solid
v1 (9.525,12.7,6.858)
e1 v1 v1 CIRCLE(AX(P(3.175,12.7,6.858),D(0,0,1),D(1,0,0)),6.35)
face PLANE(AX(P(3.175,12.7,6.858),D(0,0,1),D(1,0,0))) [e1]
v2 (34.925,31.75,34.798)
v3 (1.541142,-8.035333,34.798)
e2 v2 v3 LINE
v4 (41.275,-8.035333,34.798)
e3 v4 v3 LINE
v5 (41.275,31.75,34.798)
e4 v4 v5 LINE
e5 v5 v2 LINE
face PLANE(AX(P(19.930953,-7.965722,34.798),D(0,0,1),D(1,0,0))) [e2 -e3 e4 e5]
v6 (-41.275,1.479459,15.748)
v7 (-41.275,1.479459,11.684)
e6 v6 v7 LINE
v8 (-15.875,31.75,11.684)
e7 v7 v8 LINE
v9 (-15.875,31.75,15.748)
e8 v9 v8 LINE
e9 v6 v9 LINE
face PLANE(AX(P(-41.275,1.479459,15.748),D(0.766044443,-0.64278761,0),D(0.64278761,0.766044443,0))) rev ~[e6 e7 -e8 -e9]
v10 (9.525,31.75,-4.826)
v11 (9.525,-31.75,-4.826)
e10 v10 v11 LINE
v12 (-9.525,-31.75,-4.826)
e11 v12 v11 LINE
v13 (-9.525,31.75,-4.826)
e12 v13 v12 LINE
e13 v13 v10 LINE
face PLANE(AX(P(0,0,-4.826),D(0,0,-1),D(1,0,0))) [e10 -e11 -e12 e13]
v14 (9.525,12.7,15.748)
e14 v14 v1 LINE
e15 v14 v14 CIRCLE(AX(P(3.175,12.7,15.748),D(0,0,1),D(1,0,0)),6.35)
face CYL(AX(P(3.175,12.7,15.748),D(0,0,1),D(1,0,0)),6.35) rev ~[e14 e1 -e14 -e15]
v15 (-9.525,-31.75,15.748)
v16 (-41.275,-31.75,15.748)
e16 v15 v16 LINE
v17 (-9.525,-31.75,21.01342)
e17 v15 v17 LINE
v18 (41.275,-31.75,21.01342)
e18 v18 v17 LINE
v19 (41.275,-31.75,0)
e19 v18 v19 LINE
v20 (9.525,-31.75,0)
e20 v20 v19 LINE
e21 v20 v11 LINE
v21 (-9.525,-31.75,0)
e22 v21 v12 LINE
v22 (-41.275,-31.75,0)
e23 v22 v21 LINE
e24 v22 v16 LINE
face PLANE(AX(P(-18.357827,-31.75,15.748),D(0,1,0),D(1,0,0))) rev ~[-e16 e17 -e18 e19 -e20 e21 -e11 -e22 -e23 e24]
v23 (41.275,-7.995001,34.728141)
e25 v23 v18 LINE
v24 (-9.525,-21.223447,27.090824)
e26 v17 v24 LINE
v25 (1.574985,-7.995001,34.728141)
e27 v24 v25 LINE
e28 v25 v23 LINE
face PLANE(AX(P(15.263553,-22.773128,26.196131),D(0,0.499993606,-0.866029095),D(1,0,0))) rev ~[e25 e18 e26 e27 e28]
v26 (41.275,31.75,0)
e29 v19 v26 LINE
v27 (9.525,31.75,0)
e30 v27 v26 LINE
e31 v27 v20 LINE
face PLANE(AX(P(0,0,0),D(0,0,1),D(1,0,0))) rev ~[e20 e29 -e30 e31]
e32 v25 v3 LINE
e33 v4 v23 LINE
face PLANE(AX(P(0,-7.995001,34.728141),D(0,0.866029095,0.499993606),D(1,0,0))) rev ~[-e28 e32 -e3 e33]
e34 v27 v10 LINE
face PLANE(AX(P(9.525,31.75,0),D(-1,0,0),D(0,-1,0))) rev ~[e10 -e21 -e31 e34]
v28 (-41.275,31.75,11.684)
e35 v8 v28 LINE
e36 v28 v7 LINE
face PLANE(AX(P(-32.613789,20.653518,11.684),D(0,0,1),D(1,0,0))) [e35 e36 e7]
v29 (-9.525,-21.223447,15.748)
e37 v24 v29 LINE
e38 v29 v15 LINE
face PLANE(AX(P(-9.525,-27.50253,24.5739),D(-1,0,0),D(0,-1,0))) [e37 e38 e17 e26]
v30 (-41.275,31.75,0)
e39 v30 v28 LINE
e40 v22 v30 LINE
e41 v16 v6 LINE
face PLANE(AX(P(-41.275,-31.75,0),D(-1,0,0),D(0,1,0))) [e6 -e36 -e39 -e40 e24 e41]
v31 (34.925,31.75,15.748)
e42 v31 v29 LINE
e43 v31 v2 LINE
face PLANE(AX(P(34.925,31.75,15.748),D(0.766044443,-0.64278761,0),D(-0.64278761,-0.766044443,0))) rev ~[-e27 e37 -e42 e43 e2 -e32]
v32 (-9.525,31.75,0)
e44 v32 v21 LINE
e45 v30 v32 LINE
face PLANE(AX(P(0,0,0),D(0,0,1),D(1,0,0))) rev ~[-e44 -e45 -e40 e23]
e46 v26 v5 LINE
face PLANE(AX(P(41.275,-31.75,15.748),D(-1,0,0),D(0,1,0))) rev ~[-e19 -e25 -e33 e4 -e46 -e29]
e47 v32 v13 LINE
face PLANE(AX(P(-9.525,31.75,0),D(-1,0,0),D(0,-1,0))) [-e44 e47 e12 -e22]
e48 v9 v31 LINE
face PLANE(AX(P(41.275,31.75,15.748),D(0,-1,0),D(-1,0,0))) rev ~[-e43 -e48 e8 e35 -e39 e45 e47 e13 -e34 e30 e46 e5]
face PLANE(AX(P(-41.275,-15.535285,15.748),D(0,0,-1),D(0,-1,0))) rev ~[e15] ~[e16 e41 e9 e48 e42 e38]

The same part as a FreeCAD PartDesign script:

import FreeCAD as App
import Part
import Sketcher
from FreeCAD import Vector
Q = App.Units.Quantity


def add_polygon(sketch, points):
    """Adds a closed chain of lines whose ends are joined by coincident constraints."""
    first, n = sketch.GeometryCount, len(points)
    for a, b in zip(points, points[1:] + points[:1]):
        sketch.addGeometry(Part.LineSegment(App.Vector(*a, 0), App.Vector(*b, 0)), False)
    for i in range(n):
        sketch.addConstraint(Sketcher.Constraint("Coincident", first + i, 2, first + (i + 1) % n, 1))

doc = App.newDocument("Part")
body = doc.addObject("PartDesign::Body", "Body")
body.AllowCompound = True

sketch1 = body.newObject("Sketcher::SketchObject", "Sketch")
sketch1.AttachmentSupport = (doc.getObject("XY_Plane"), [""])
sketch1.MapMode = "FlatFace"
add_polygon(sketch1, [(-41, 32), (-41, -32), (41, -32), (41, 32)])
sketch1.addConstraint(Sketcher.Constraint("Vertical", 0))
sketch1.addConstraint(Sketcher.Constraint("Horizontal", 1))
sketch1.addConstraint(Sketcher.Constraint("Vertical", 2))
sketch1.addConstraint(Sketcher.Constraint("Horizontal", 3))
sketch1.addConstraint(Sketcher.Constraint("Symmetric", 0, 2, 2, 2, -1, 1))
sketch1.addConstraint(Sketcher.Constraint("DistanceY", 0, 2, 0, 1, Q("2.5 in")))
sketch1.addConstraint(Sketcher.Constraint("DistanceX", 1, 1, 1, 2, Q("3.25 in")))
pad1 = body.newObject("PartDesign::Pad", "Pad")
pad1.Profile = sketch1
pad1.Length = Q("0.62 in")

sketch2 = body.newObject("Sketcher::SketchObject", "Sketch001")
sketch2.AttachmentSupport = (doc.getObject("XY_Plane"), [""])
sketch2.MapMode = "FlatFace"
sketch2.AttachmentOffset = App.Placement(Vector(0, 0, 0.62 * 25.4), App.Rotation())
add_polygon(sketch2, [(-41, 1), (-16, 32), (-41, 32)])
sketch2.addConstraint(Sketcher.Constraint("Horizontal", 1))
sketch2.addConstraint(Sketcher.Constraint("Vertical", 2))
sketch2.addConstraint(Sketcher.Constraint("DistanceX", 1, 2, 1, 1, Q("1 in")))
sketch2.addConstraint(Sketcher.Constraint("Angle", 0, Q("50 deg")))
sketch2.addConstraint(Sketcher.Constraint("DistanceY", -1, 1, 0, 2, Q("1.25 in")))
sketch2.addConstraint(Sketcher.Constraint("DistanceX", 0, 2, -1, 1, Q("0.625 in")))
pocket1 = body.newObject("PartDesign::Pocket", "Pocket")
pocket1.Profile = sketch2
pocket1.Length = Q("0.16 in")

sketch3 = body.newObject("Sketcher::SketchObject", "Sketch002")
sketch3.AttachmentSupport = (doc.getObject("XY_Plane"), [""])
sketch3.MapMode = "FlatFace"
add_polygon(sketch3, [(-10, -32), (-10, 32), (10, 32), (10, -32)])
sketch3.addConstraint(Sketcher.Constraint("Vertical", 0))
sketch3.addConstraint(Sketcher.Constraint("Horizontal", 1))
sketch3.addConstraint(Sketcher.Constraint("Vertical", 2))
sketch3.addConstraint(Sketcher.Constraint("Horizontal", 3))
sketch3.addConstraint(Sketcher.Constraint("Symmetric", 0, 2, 2, 2, -1, 1))
sketch3.addConstraint(Sketcher.Constraint("DistanceY", 0, 1, 0, 2, Q("2.5 in")))
sketch3.addConstraint(Sketcher.Constraint("DistanceX", 1, 1, 1, 2, Q("0.75 in")))
pad2 = body.newObject("PartDesign::Pad", "Pad001")
pad2.Profile = sketch3
pad2.Length = Q("0.19 in")
pad2.Reversed = True

sketch4 = body.newObject("Sketcher::SketchObject", "Sketch003")
sketch4.AttachmentSupport = (doc.getObject("XY_Plane"), [""])
sketch4.MapMode = "FlatFace"
sketch4.AttachmentOffset = App.Placement(Vector(0, 0, 0.62 * 25.4), App.Rotation())
add_polygon(sketch4, [(41, -32), (41, 32), (35, 32), (-18, -32)])
sketch4.addConstraint(Sketcher.Constraint("Vertical", 0))
sketch4.addConstraint(Sketcher.Constraint("Horizontal", 1))
sketch4.addConstraint(Sketcher.Constraint("Horizontal", 3))
sketch4.addConstraint(Sketcher.Constraint("DistanceY", 0, 1, 0, 2, Q("2.5 in")))
sketch4.addConstraint(Sketcher.Constraint("Angle", 2, Q("-130 deg")))
sketch4.addConstraint(Sketcher.Constraint("DistanceX", 1, 2, 1, 1, Q("0.25 in")))
sketch4.addConstraint(Sketcher.Constraint("DistanceY", -1, 1, 0, 2, Q("1.25 in")))
sketch4.addConstraint(Sketcher.Constraint("DistanceX", -1, 1, 0, 2, Q("1.625 in")))
pad3 = body.newObject("PartDesign::Pad", "Pad002")
pad3.Profile = sketch4
pad3.Length = Q("0.75 in")

sketch5 = body.newObject("Sketcher::SketchObject", "Sketch004")
sketch5.AttachmentSupport = (doc.getObject("XY_Plane"), [""])
sketch5.MapMode = "FlatFace"
sketch5.AttachmentOffset = App.Placement(Vector(0, 0, 0.62 * 25.4), App.Rotation())
sketch5.addGeometry(Part.Circle(Vector(3, 13, 0), Vector(0, 0, 1), 6), False)
sketch5.addConstraint(Sketcher.Constraint("Diameter", 0, Q("0.5 in")))
sketch5.addConstraint(Sketcher.Constraint("DistanceY", -1, 1, 0, 3, Q("0.5 in")))
sketch5.addConstraint(Sketcher.Constraint("DistanceX", -1, 1, 0, 3, Q("0.125 in")))
pocket2 = body.newObject("PartDesign::Pocket", "Pocket001")
pocket2.Profile = sketch5
pocket2.Length = Q("0.35 in")

sketch6 = body.newObject("Sketcher::SketchObject", "Sketch005")
sketch6.Placement = App.Placement(Vector(0, -17.036297, 29.508235), App.Rotation(Vector(1, 0, 0), Vector(0, -0.866029095, -0.499993606), Vector(0, 0.499993606, -0.866029095), "ZXY"))
add_polygon(sketch6, [(-18.6, 20.5), (-20.1, 17.1), (0, -10.4), (43.6, -10.4), (43.6, 20.5)])
sketch6.addConstraint(Sketcher.Constraint("Horizontal", 2))
sketch6.addConstraint(Sketcher.Constraint("Vertical", 3))
sketch6.addConstraint(Sketcher.Constraint("Horizontal", 4))
sketch6.addConstraint(Sketcher.Constraint("PointOnObject", 1, 2, -2))
sketch6.addConstraint(Sketcher.Constraint("DistanceX", 4, 2, 4, 1, Q("62.195061 mm")))
sketch6.addConstraint(Sketcher.Constraint("DistanceY", 3, 1, 3, 2, Q("30.911939 mm")))
sketch6.addConstraint(Sketcher.Constraint("DistanceY", -1, 1, 0, 2, Q("17.112002 mm")))
sketch6.addConstraint(Sketcher.Constraint("Distance", 0, Q("3.694271 mm")))
sketch6.addConstraint(Sketcher.Constraint("Distance", 1, Q("34.111331 mm")))
sketch6.addConstraint(Sketcher.Constraint("DistanceX", 2, 1, 2, 2, Q("43.619152 mm")))
pocket3 = body.newObject("PartDesign::Pocket", "Pocket002")
pocket3.Profile = sketch6
pocket3.Length = Q("1 in")

sketch7 = body.newObject("Sketcher::SketchObject", "Sketch006")
sketch7.Placement = App.Placement(Vector(4.861008, -4.07887, 0), App.Rotation(Vector(-0.64278761, -0.766044443, 0), Vector(0, 0, 1), Vector(-0.766044443, 0.64278761, 0), "ZXY"))
add_polygon(sketch7, [(36, 35), (15, 35), (36, 26)])
sketch7.addConstraint(Sketcher.Constraint("Horizontal", 0))
sketch7.addConstraint(Sketcher.Constraint("Vertical", 2))
sketch7.addConstraint(Sketcher.Constraint("DistanceY", -1, 1, 0, 2, Q("1.37 in")))
sketch7.addConstraint(Sketcher.Constraint("Distance", 1, Q("23.152399 mm")))
sketch7.addConstraint(Sketcher.Constraint("DistanceX", 0, 2, 0, 1, Q("21.235676 mm")))
sketch7.addConstraint(Sketcher.Constraint("DistanceX", -1, 1, 0, 2, Q("14.886419 mm")))
pocket4 = body.newObject("PartDesign::Pocket", "Pocket003")
pocket4.Profile = sketch7
pocket4.Length = Q("1 in")

sketch8 = body.newObject("Sketcher::SketchObject", "Sketch007")
sketch8.AttachmentSupport = (doc.getObject("YZ_Plane"), [""])
sketch8.MapMode = "FlatFace"
sketch8.AttachmentOffset = App.Placement(Vector(0, 0, -1.625 * 25.4), App.Rotation())
add_polygon(sketch8, [(-16, 33), (-16, 16), (-39, 16), (-39, 33)])
sketch8.addConstraint(Sketcher.Constraint("Vertical", 0))
sketch8.addConstraint(Sketcher.Constraint("Horizontal", 1))
sketch8.addConstraint(Sketcher.Constraint("Vertical", 2))
sketch8.addConstraint(Sketcher.Constraint("Horizontal", 3))
sketch8.addConstraint(Sketcher.Constraint("DistanceY", -1, 1, 0, 2, Q("0.62 in")))
sketch8.addConstraint(Sketcher.Constraint("DistanceY", 0, 2, 0, 1, Q("17.6518 mm")))
sketch8.addConstraint(Sketcher.Constraint("DistanceX", 1, 2, 1, 1, Q("23.93449 mm")))
sketch8.addConstraint(Sketcher.Constraint("DistanceX", 0, 2, -1, 1, Q("15.535285 mm")))
pocket5 = body.newObject("PartDesign::Pocket", "Pocket004")
pocket5.Profile = sketch8
pocket5.Length = Q("1.25 in")
pocket5.Reversed = True

doc.recompute()
